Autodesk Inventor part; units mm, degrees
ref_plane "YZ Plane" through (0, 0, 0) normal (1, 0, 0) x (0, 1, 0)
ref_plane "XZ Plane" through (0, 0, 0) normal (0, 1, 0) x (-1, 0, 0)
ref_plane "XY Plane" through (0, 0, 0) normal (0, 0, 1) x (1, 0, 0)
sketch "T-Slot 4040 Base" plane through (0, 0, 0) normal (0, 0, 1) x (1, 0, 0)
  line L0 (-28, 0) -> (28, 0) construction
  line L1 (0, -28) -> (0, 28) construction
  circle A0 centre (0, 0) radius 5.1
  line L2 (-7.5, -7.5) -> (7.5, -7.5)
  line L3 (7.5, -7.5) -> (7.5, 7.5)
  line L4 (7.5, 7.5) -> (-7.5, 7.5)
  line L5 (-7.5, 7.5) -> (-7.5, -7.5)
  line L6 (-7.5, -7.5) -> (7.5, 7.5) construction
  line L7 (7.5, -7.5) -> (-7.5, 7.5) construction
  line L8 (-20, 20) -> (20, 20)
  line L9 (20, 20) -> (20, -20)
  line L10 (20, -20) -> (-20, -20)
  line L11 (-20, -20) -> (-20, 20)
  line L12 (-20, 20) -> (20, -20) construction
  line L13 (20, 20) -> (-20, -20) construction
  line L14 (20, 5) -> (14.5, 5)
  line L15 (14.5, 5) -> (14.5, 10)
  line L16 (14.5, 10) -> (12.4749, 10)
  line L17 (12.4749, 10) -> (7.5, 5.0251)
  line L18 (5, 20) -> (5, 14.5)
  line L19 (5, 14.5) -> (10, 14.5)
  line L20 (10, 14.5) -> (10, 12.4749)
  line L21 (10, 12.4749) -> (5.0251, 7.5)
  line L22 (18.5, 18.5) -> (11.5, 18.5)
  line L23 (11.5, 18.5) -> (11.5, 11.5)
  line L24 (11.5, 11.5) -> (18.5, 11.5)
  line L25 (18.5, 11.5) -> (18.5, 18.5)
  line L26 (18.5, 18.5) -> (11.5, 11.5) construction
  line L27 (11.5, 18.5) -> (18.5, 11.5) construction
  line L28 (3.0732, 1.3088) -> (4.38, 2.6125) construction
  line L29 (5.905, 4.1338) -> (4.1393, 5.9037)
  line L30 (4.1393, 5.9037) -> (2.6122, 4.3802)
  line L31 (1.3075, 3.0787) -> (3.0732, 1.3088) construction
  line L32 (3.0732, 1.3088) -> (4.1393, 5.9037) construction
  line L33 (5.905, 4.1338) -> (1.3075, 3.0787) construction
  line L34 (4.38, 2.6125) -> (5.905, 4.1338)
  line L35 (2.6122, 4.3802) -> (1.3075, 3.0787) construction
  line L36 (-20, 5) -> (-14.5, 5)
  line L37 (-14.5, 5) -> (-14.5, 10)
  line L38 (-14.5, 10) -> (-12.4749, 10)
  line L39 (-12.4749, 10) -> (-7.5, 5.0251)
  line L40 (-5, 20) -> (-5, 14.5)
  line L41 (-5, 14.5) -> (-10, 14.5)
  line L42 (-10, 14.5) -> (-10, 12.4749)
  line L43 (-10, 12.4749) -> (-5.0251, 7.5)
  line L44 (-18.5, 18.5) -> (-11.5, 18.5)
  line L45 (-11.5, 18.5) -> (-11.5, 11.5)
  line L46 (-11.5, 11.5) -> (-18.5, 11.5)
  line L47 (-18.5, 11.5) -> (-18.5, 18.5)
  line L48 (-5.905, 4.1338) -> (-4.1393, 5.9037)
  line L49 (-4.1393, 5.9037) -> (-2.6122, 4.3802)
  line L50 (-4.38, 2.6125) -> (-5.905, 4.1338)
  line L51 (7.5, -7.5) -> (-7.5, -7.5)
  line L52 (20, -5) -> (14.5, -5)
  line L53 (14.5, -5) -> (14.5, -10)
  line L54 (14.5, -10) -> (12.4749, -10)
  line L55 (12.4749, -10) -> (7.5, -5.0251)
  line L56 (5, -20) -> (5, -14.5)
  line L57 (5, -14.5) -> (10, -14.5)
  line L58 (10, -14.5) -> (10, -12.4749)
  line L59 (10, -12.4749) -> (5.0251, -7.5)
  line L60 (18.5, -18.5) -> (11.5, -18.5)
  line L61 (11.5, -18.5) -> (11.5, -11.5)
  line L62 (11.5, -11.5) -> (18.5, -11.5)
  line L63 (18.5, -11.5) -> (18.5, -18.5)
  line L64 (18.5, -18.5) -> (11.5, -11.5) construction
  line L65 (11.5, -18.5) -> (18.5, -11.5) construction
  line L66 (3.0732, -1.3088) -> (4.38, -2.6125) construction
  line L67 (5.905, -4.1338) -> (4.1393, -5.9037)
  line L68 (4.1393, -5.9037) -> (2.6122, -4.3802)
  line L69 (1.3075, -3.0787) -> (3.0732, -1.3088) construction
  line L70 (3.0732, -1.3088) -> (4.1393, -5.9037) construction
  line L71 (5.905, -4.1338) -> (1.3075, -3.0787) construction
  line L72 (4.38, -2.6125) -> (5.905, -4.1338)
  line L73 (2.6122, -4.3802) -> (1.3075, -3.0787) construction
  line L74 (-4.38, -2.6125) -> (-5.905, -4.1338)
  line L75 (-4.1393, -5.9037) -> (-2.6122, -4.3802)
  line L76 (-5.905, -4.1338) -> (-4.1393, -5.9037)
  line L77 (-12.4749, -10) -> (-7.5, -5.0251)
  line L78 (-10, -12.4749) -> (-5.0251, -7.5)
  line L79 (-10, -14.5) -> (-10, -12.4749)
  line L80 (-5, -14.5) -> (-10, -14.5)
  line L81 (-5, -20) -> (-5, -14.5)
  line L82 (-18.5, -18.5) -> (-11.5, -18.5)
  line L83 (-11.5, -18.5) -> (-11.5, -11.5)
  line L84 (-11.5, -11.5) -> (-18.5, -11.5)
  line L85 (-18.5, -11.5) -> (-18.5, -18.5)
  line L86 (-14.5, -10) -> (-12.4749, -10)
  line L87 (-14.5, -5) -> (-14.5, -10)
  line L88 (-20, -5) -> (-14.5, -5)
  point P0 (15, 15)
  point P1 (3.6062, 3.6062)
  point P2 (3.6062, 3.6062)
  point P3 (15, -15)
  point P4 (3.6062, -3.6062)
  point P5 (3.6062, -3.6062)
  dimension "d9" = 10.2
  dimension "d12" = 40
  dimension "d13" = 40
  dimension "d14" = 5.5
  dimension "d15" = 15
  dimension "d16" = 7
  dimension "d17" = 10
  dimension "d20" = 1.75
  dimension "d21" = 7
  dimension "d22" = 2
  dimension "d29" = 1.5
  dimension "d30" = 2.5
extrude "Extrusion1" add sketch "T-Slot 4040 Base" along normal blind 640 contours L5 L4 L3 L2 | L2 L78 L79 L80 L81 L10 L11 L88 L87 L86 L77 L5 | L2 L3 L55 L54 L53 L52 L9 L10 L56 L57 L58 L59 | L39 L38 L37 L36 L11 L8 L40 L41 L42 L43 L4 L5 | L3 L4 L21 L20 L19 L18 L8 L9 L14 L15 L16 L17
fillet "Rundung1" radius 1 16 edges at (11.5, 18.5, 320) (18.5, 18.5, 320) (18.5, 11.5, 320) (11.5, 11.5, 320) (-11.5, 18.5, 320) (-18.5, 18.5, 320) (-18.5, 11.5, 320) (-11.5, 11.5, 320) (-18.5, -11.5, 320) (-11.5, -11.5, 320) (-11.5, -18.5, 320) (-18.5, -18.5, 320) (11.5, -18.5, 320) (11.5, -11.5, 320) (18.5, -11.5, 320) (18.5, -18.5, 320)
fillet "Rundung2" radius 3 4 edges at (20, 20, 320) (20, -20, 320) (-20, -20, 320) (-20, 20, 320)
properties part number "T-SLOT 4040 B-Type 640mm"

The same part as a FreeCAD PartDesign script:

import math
import FreeCAD as App
import Part
import Sketcher

V = App.Vector
Q = App.Units.Quantity


def edges_at(feature, points):
    """Names of the edges that pass closest to the given points."""
    edges = feature.Shape.Edges
    near = lambda p: min(range(len(edges)), key=lambda i: edges[i].distToShape(Part.Vertex(*p))[0])
    return sorted({f"Edge{near(p) + 1}" for p in points})


def add_polygon(sketch, points):
    """Adds a closed chain of lines whose ends are joined by coincident constraints."""
    first, n = sketch.GeometryCount, len(points)
    for a, b in zip(points, points[1:] + points[:1]):
        sketch.addGeometry(Part.LineSegment(App.Vector(*a, 0), App.Vector(*b, 0)), False)
    for i in range(n):
        sketch.addConstraint(Sketcher.Constraint("Coincident", first + i, 2, first + (i + 1) % n, 1))

doc = App.newDocument("Part")
params = doc.addObject("Spreadsheet::Sheet", "Params")
for row, (alias, value) in enumerate([
    ("sketch1_radius", "5.1 mm"),
    ("sketch1_width", "15 mm"),
    ("sketch1_width2", "7 mm"),
    ("sketch1_width3", "5.5 mm"),
    ("sketch1_length", "2.5 mm"),
    ("pad1_length", "640 mm"),
    ("fillet_radius", "1 mm"),
    ("fillet2_radius", "3 mm"),
], start=1):
    params.set(f"A{row}", alias)
    params.set(f"B{row}", "=" + value)
    params.setAlias(f"B{row}", alias)

body = doc.addObject("PartDesign::Body", "Body")

# Sketch on XY plane
sketch1 = body.newObject("Sketcher::SketchObject", "Sketch")
sketch1.AttachmentSupport = (doc.getObject("XY_Plane"), [""])
sketch1.MapMode = "FlatFace"
add_polygon(sketch1, [(-7.5, 5.0251), (-7.5, -5.0251), (-12.4749, -10), (-14.5, -10), (-14.5, -5), (-20, -5), (-20, -20), (-5, -20), (-5, -14.5), (-10, -14.5), (-10, -12.4749), (-5.0251, -7.5), (5.0251, -7.5), (10, -12.4749), (10, -14.5), (5, -14.5), (5, -20), (20, -20), (20, -5), (14.5, -5), (14.5, -10), (12.4749, -10), (7.5, -5.0251), (7.5, 5.0251), (12.4749, 10), (14.5, 10), (14.5, 5), (20, 5), (20, 20), (5, 20), (5, 14.5), (10, 14.5), (10, 12.4749), (5.0251, 7.5), (-5.0251, 7.5), (-10, 12.4749), (-10, 14.5), (-5, 14.5), (-5, 20), (-20, 20), (-20, 5), (-14.5, 5), (-14.5, 10), (-12.4749, 10)])  # lines 0-43
sketch1.addGeometry(Part.ArcOfCircle(Part.Circle(V(0, 0, 0), V(0, 0, 1), 5.1), math.radians(-30.814436), math.radians(30.814436)), False)  # 44
sketch1.addGeometry(Part.LineSegment(V(4.38, -2.6125, 0), V(5.905, -4.1338, 0)), False)  # 45
sketch1.addGeometry(Part.LineSegment(V(5.905, -4.1338, 0), V(4.1393, -5.9037, 0)), False)  # 46
sketch1.addGeometry(Part.LineSegment(V(4.1393, -5.9037, 0), V(2.6122, -4.3802, 0)), False)  # 47
sketch1.addGeometry(Part.ArcOfCircle(Part.Circle(V(0, 0, 0), V(0, 0, 1), 5.1), math.radians(-120.810391), math.radians(-59.189609)), False)  # 48
sketch1.addGeometry(Part.LineSegment(V(-2.6122, -4.3802, 0), V(-4.1393, -5.9037, 0)), False)  # 49
sketch1.addGeometry(Part.LineSegment(V(-4.1393, -5.9037, 0), V(-5.905, -4.1338, 0)), False)  # 50
sketch1.addGeometry(Part.LineSegment(V(-5.905, -4.1338, 0), V(-4.38, -2.6125, 0)), False)  # 51
sketch1.addGeometry(Part.ArcOfCircle(Part.Circle(V(0, 0, 0), V(0, 0, 1), 5.1), math.radians(149.185564), math.radians(210.814436)), False)  # 52
sketch1.addGeometry(Part.LineSegment(V(-4.38, 2.6125, 0), V(-5.905, 4.1338, 0)), False)  # 53
sketch1.addGeometry(Part.LineSegment(V(-5.905, 4.1338, 0), V(-4.1393, 5.9037, 0)), False)  # 54
sketch1.addGeometry(Part.LineSegment(V(-4.1393, 5.9037, 0), V(-2.6122, 4.3802, 0)), False)  # 55
sketch1.addGeometry(Part.ArcOfCircle(Part.Circle(V(0, 0, 0), V(0, 0, 1), 5.1), math.radians(59.189609), math.radians(120.810391)), False)  # 56
sketch1.addGeometry(Part.LineSegment(V(2.6122, 4.3802, 0), V(4.1393, 5.9037, 0)), False)  # 57
sketch1.addGeometry(Part.LineSegment(V(4.1393, 5.9037, 0), V(5.905, 4.1338, 0)), False)  # 58
sketch1.addGeometry(Part.LineSegment(V(5.905, 4.1338, 0), V(4.38, 2.6125, 0)), False)  # 59
add_polygon(sketch1, [(-18.5, -11.5), (-11.5, -11.5), (-11.5, -18.5), (-18.5, -18.5)])  # lines 60-63
add_polygon(sketch1, [(-11.5, 18.5), (-11.5, 11.5), (-18.5, 11.5), (-18.5, 18.5)])  # lines 64-67
add_polygon(sketch1, [(18.5, 11.5), (11.5, 11.5), (11.5, 18.5), (18.5, 18.5)])  # lines 68-71
add_polygon(sketch1, [(11.5, -18.5), (11.5, -11.5), (18.5, -11.5), (18.5, -18.5)])  # lines 72-75
sketch1.addConstraint(Sketcher.Constraint("Coincident", 44, 1, 45, 1))
sketch1.addConstraint(Sketcher.Constraint("Coincident", 45, 2, 46, 1))
sketch1.addConstraint(Sketcher.Constraint("Coincident", 46, 2, 47, 1))
sketch1.addConstraint(Sketcher.Constraint("Coincident", 47, 2, 48, 2))
sketch1.addConstraint(Sketcher.Constraint("Coincident", 48, 1, 49, 1))
sketch1.addConstraint(Sketcher.Constraint("Coincident", 49, 2, 50, 1))
sketch1.addConstraint(Sketcher.Constraint("Coincident", 50, 2, 51, 1))
sketch1.addConstraint(Sketcher.Constraint("Coincident", 51, 2, 52, 2))
sketch1.addConstraint(Sketcher.Constraint("Coincident", 52, 1, 53, 1))
sketch1.addConstraint(Sketcher.Constraint("Coincident", 53, 2, 54, 1))
sketch1.addConstraint(Sketcher.Constraint("Coincident", 54, 2, 55, 1))
sketch1.addConstraint(Sketcher.Constraint("Coincident", 55, 2, 56, 2))
sketch1.addConstraint(Sketcher.Constraint("Coincident", 56, 1, 57, 1))
sketch1.addConstraint(Sketcher.Constraint("Coincident", 57, 2, 58, 1))
sketch1.addConstraint(Sketcher.Constraint("Coincident", 58, 2, 59, 1))
sketch1.addConstraint(Sketcher.Constraint("Coincident", 59, 2, 44, 2))
sketch1.addConstraint(Sketcher.Constraint("Vertical", 0))
sketch1.addConstraint(Sketcher.Constraint("Horizontal", 2))
sketch1.addConstraint(Sketcher.Constraint("Vertical", 3))
sketch1.addConstraint(Sketcher.Constraint("Horizontal", 4))
sketch1.addConstraint(Sketcher.Constraint("Vertical", 5))
sketch1.addConstraint(Sketcher.Constraint("Horizontal", 6))
sketch1.addConstraint(Sketcher.Constraint("Vertical", 7))
sketch1.addConstraint(Sketcher.Constraint("Horizontal", 8))
sketch1.addConstraint(Sketcher.Constraint("Vertical", 9))
sketch1.addConstraint(Sketcher.Constraint("Horizontal", 11))
sketch1.addConstraint(Sketcher.Constraint("Vertical", 13))
sketch1.addConstraint(Sketcher.Constraint("Horizontal", 14))
sketch1.addConstraint(Sketcher.Constraint("Vertical", 15))
sketch1.addConstraint(Sketcher.Constraint("Horizontal", 16))
sketch1.addConstraint(Sketcher.Constraint("Vertical", 17))
sketch1.addConstraint(Sketcher.Constraint("Horizontal", 18))
sketch1.addConstraint(Sketcher.Constraint("Vertical", 19))
sketch1.addConstraint(Sketcher.Constraint("Horizontal", 20))
sketch1.addConstraint(Sketcher.Constraint("Vertical", 22))
sketch1.addConstraint(Sketcher.Constraint("Horizontal", 24))
sketch1.addConstraint(Sketcher.Constraint("Vertical", 25))
sketch1.addConstraint(Sketcher.Constraint("Horizontal", 26))
sketch1.addConstraint(Sketcher.Constraint("Vertical", 27))
sketch1.addConstraint(Sketcher.Constraint("Horizontal", 28))
sketch1.addConstraint(Sketcher.Constraint("Vertical", 29))
sketch1.addConstraint(Sketcher.Constraint("Horizontal", 30))
sketch1.addConstraint(Sketcher.Constraint("Vertical", 31))
sketch1.addConstraint(Sketcher.Constraint("Horizontal", 33))
sketch1.addConstraint(Sketcher.Constraint("Vertical", 35))
sketch1.addConstraint(Sketcher.Constraint("Horizontal", 36))
sketch1.addConstraint(Sketcher.Constraint("Vertical", 37))
sketch1.addConstraint(Sketcher.Constraint("Horizontal", 38))
sketch1.addConstraint(Sketcher.Constraint("Vertical", 39))
sketch1.addConstraint(Sketcher.Constraint("Horizontal", 40))
sketch1.addConstraint(Sketcher.Constraint("Vertical", 41))
sketch1.addConstraint(Sketcher.Constraint("Horizontal", 42))
sketch1.addConstraint(Sketcher.Constraint("Horizontal", 60))
sketch1.addConstraint(Sketcher.Constraint("Vertical", 61))
sketch1.addConstraint(Sketcher.Constraint("Horizontal", 62))
sketch1.addConstraint(Sketcher.Constraint("Vertical", 63))
sketch1.addConstraint(Sketcher.Constraint("Vertical", 64))
sketch1.addConstraint(Sketcher.Constraint("Horizontal", 65))
sketch1.addConstraint(Sketcher.Constraint("Vertical", 66))
sketch1.addConstraint(Sketcher.Constraint("Horizontal", 67))
sketch1.addConstraint(Sketcher.Constraint("Horizontal", 68))
sketch1.addConstraint(Sketcher.Constraint("Vertical", 69))
sketch1.addConstraint(Sketcher.Constraint("Horizontal", 70))
sketch1.addConstraint(Sketcher.Constraint("Vertical", 71))
sketch1.addConstraint(Sketcher.Constraint("Vertical", 72))
sketch1.addConstraint(Sketcher.Constraint("Horizontal", 73))
sketch1.addConstraint(Sketcher.Constraint("Vertical", 74))
sketch1.addConstraint(Sketcher.Constraint("Horizontal", 75))
sketch1.addConstraint(Sketcher.Constraint("Coincident", 44, 3, -1, 1))
sketch1.addConstraint(Sketcher.Constraint("Coincident", 48, 3, -1, 1))
sketch1.addConstraint(Sketcher.Constraint("Coincident", 52, 3, -1, 1))
sketch1.addConstraint(Sketcher.Constraint("Coincident", 56, 3, -1, 1))
sketch1.addConstraint(Sketcher.Constraint("Equal", 44, 48))
sketch1.addConstraint(Sketcher.Constraint("Equal", 48, 52))
sketch1.addConstraint(Sketcher.Constraint("Equal", 52, 56))
sketch1.addConstraint(Sketcher.Constraint("Symmetric", 0, 2, 22, 2, -1, 1))
sketch1.addConstraint(Sketcher.Constraint("Symmetric", 1, 2, 23, 2, -1, 1))
sketch1.addConstraint(Sketcher.Constraint("Symmetric", 3, 2, 25, 2, -1, 1))
sketch1.addConstraint(Sketcher.Constraint("Symmetric", 5, 2, 27, 2, -1, 1))
sketch1.addConstraint(Sketcher.Constraint("Symmetric", 7, 2, 29, 2, -1, 1))
sketch1.addConstraint(Sketcher.Constraint("Symmetric", 9, 2, 31, 2, -1, 1))
sketch1.addConstraint(Sketcher.Constraint("Symmetric", 10, 2, 32, 2, -1, 1))
sketch1.addConstraint(Sketcher.Constraint("Symmetric", 12, 2, 34, 2, -1, 1))
sketch1.addConstraint(Sketcher.Constraint("Symmetric", 14, 2, 36, 2, -1, 1))
sketch1.addConstraint(Sketcher.Constraint("Symmetric", 16, 2, 38, 2, -1, 1))
sketch1.addConstraint(Sketcher.Constraint("Symmetric", 18, 2, 40, 2, -1, 1))
sketch1.addConstraint(Sketcher.Constraint("Symmetric", 20, 2, 42, 2, -1, 1))
sketch1.addConstraint(Sketcher.Constraint("Symmetric", 45, 2, 53, 2, -1, 1))
sketch1.addConstraint(Sketcher.Constraint("Symmetric", 46, 2, 54, 2, -1, 1))
sketch1.addConstraint(Sketcher.Constraint("Symmetric", 49, 2, 57, 2, -1, 1))
sketch1.addConstraint(Sketcher.Constraint("Symmetric", 50, 2, 58, 2, -1, 1))
sketch1.addConstraint(Sketcher.Constraint("Symmetric", 60, 2, 68, 2, -1, 1))
sketch1.addConstraint(Sketcher.Constraint("Symmetric", 62, 2, 70, 2, -1, 1))
sketch1.addConstraint(Sketcher.Constraint("Symmetric", 64, 2, 72, 2, -1, 1))
sketch1.addConstraint(Sketcher.Constraint("Symmetric", 66, 2, 74, 2, -1, 1))
sketch1.addConstraint(Sketcher.Constraint("Symmetric", 9, 2, 12, 2, -2))
sketch1.addConstraint(Sketcher.Constraint("Symmetric", 7, 2, 14, 2, -2))
sketch1.addConstraint(Sketcher.Constraint("Symmetric", 5, 2, 16, 2, -2))
sketch1.addConstraint(Sketcher.Constraint("Symmetric", 3, 2, 18, 2, -2))
sketch1.addConstraint(Sketcher.Constraint("Symmetric", 1, 2, 20, 2, -2))
sketch1.addConstraint(Sketcher.Constraint("Symmetric", 46, 2, 49, 2, -2))
sketch1.addConstraint(Sketcher.Constraint("Symmetric", 45, 2, 50, 2, -2))
sketch1.addConstraint(Sketcher.Constraint("Symmetric", 64, 2, 68, 2, -2))
sketch1.addConstraint(Sketcher.Constraint("Symmetric", 66, 2, 70, 2, -2))
sketch1.addConstraint(Sketcher.Constraint("Parallel", 1, 10))
sketch1.addConstraint(Sketcher.Constraint("Perpendicular", 10, 12))
sketch1.addConstraint(Sketcher.Constraint("Parallel", 12, 21))
sketch1.addConstraint(Sketcher.Constraint("Perpendicular", 32, 34))
sketch1.addConstraint(Sketcher.Constraint("Parallel", 34, 43))
sketch1.addConstraint(Sketcher.Constraint("Perpendicular", 45, 46))
sketch1.addConstraint(Sketcher.Constraint("Perpendicular", 46, 47))
sketch1.addConstraint(Sketcher.Constraint("Perpendicular", 49, 50))
sketch1.addConstraint(Sketcher.Constraint("Perpendicular", 50, 51))
sketch1.addConstraint(Sketcher.Constraint("Parallel", 47, 53))
sketch1.addConstraint(Sketcher.Constraint("Perpendicular", 54, 55))
sketch1.addConstraint(Sketcher.Constraint("Parallel", 51, 57))
sketch1.addConstraint(Sketcher.Constraint("Perpendicular", 58, 59))
sketch1.addConstraint(Sketcher.Constraint("Horizontal", 0, 2, 21, 2))
sketch1.addConstraint(Sketcher.Constraint("Equal", 33, 0))
sketch1.addConstraint(Sketcher.Constraint("Equal", 36, 3))
sketch1.addConstraint(Sketcher.Constraint("Equal", 38, 5))
sketch1.addConstraint(Sketcher.Constraint("Equal", 40, 7))
sketch1.addConstraint(Sketcher.Constraint("Equal", 42, 9))
sketch1.addConstraint(Sketcher.Constraint("Equal", 75, 61))
sketch1.addConstraint(Sketcher.Constraint("Equal", 1, 10))
sketch1.addConstraint(Sketcher.Constraint("Radius", 44, 5.1))
sketch1.addConstraint(Sketcher.Constraint("DistanceX", 6, 1, 6, 2, 15.0))
sketch1.addConstraint(Sketcher.Constraint("DistanceX", 60, 1, 60, 2, 7.0))
sketch1.addConstraint(Sketcher.Constraint("DistanceX", 4, 2, 4, 1, 5.5))
sketch1.addConstraint(Sketcher.Constraint("DistanceY", 1, 2, -1, 1, 10.0))
sketch1.addConstraint(Sketcher.Constraint("Distance", 46, 2.5))
sketch1.addConstraint(Sketcher.Constraint("DistanceX", 8, 2, 8, 1, 5.0))
sketch1.addConstraint(Sketcher.Constraint("DistanceX", 0, 2, -1, 1, 7.5))
sketch1.addConstraint(Sketcher.Constraint("DistanceX", 60, 2, -1, 1, 11.5))
sketch1.addConstraint(Sketcher.Constraint("DistanceY", 60, 2, -1, 1, 11.5))
sketch1.addConstraint(Sketcher.Constraint("Angle", 45, Q("-44.9304 deg")))
sketch1.addConstraint(Sketcher.Constraint("DistanceX", 2, 2, 2, 1, 2.025))
sketch1.addConstraint(Sketcher.Constraint("DistanceX", -1, 1, 44, 1, 4.38))
sketch1.addConstraint(Sketcher.Constraint("Distance", 45, 2.154))
sketch1.setExpression("Constraints[185]", "Params.sketch1_radius")
sketch1.setExpression("Constraints[186]", "Params.sketch1_width")
sketch1.setExpression("Constraints[187]", "Params.sketch1_width2")
sketch1.setExpression("Constraints[188]", "Params.sketch1_width3")
sketch1.setExpression("Constraints[190]", "Params.sketch1_length")
pad1 = body.newObject("PartDesign::Pad", "Pad")
pad1.Profile = sketch1
pad1.setExpression("Length", "Params.pad1_length")
doc.recompute()

fillet = body.newObject("PartDesign::Fillet", "Fillet")
fillet.Base = (pad1, edges_at(pad1, [
    (11.5, 18.5, 320),
    (18.5, 18.5, 320),
    (18.5, 11.5, 320),
    (11.5, 11.5, 320),
    (-11.5, 18.5, 320),
    (-18.5, 18.5, 320),
    (-18.5, 11.5, 320),
    (-11.5, 11.5, 320),
    (-18.5, -11.5, 320),
    (-11.5, -11.5, 320),
    (-11.5, -18.5, 320),
    (-18.5, -18.5, 320),
    (11.5, -18.5, 320),
    (11.5, -11.5, 320),
    (18.5, -11.5, 320),
    (18.5, -18.5, 320),
]))
fillet.setExpression("Radius", "Params.fillet_radius")
doc.recompute()

fillet2 = body.newObject("PartDesign::Fillet", "Fillet001")
fillet2.Base = (fillet, edges_at(fillet, [
    (20, 20, 320),
    (20, -20, 320),
    (-20, -20, 320),
    (-20, 20, 320),
]))
fillet2.setExpression("Radius", "Params.fillet2_radius")

doc.recompute()
